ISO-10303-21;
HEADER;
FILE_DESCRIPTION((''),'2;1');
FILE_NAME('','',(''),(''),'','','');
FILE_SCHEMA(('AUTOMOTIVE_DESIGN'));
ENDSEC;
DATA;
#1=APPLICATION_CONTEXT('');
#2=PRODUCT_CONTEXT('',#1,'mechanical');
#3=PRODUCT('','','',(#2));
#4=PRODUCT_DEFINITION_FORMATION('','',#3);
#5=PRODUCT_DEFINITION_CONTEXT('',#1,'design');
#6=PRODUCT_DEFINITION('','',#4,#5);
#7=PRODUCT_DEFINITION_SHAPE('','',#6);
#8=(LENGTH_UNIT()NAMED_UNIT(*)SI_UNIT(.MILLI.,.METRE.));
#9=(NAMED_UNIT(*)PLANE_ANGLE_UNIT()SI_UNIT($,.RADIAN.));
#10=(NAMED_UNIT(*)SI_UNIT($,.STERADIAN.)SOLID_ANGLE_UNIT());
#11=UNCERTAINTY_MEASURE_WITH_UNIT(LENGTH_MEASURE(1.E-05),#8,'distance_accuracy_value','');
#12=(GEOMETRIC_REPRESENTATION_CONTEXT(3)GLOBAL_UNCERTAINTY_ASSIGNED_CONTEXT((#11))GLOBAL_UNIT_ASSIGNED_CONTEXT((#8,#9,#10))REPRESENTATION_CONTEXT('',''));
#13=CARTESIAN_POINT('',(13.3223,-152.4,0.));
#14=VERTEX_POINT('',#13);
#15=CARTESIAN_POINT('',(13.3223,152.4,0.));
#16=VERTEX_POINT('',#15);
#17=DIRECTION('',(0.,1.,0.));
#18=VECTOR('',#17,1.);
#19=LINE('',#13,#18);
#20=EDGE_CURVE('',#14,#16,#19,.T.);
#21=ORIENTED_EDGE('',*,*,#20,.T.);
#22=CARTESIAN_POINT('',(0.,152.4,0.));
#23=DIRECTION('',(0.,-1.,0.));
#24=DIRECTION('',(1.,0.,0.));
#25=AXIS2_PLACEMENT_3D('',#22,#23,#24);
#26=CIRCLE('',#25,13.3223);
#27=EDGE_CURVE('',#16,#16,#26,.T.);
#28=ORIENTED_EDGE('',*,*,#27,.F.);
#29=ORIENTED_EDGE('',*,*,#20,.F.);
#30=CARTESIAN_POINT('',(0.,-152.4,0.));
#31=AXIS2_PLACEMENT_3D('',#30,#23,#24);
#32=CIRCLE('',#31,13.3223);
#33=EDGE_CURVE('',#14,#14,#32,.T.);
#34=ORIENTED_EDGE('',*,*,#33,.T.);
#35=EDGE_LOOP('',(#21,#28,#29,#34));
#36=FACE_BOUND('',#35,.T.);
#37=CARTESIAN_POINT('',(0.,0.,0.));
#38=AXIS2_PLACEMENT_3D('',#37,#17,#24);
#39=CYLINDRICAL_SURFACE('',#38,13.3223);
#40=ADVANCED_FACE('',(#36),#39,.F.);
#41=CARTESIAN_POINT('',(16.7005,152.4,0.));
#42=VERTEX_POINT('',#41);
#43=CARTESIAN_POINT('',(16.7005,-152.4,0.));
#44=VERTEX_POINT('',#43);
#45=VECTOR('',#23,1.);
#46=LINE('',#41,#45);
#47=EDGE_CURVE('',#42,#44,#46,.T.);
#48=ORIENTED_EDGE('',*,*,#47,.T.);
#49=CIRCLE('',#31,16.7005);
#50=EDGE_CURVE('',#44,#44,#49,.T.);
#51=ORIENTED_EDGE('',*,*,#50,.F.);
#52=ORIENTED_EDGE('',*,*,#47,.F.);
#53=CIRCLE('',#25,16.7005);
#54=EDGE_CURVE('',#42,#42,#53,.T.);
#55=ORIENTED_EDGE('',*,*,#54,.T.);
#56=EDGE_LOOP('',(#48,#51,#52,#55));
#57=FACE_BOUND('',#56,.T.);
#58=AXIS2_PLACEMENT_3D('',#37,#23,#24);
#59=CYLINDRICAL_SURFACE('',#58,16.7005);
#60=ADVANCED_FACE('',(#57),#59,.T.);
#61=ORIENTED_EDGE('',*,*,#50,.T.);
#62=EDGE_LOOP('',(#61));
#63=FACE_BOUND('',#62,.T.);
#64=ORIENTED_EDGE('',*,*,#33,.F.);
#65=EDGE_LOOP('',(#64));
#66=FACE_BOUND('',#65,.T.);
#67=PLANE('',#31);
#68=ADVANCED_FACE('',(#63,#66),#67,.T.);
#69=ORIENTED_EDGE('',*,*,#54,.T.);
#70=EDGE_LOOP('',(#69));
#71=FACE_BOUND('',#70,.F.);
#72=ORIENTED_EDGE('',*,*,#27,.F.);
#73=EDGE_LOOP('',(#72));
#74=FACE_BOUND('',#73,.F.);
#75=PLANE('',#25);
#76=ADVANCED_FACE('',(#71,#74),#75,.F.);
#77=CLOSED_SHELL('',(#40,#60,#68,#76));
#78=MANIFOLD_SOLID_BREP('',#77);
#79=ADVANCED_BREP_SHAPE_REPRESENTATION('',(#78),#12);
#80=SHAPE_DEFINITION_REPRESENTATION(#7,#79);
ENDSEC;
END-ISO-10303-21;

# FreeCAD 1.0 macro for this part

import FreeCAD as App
import Part
import Sketcher
from FreeCAD import Vector
Q = App.Units.Quantity

doc = App.newDocument("Part")
body = doc.addObject("PartDesign::Body", "Body")

# Sketch on XZ plane
sketch1 = doc.addObject("Sketcher::SketchObject", "Sketch")
body.addObject(sketch1)
sketch1.AttachmentSupport = (doc.XZ_Plane, [""])
sketch1.MapMode = "FlatFace"
sketch1.addGeometry([
    Part.Circle(Vector(0, 0, 0), Vector(0, 0, 1), 16.7005),
    Part.Circle(Vector(0, 0, 0), Vector(0, 0, 1), 13.3223),
], False)
sketch1.addConstraint([
    Sketcher.Constraint("Coincident", 0, 3, -1, 1),
    Sketcher.Constraint("Coincident", 1, 3, -1, 1),
    Sketcher.Constraint("Diameter", 0, Q("1.315 in")),
    Sketcher.Constraint("Diameter", 1, Q("1.049 in")),
])
pad1 = doc.addObject("PartDesign::Pad", "Pad")
body.addObject(pad1)
pad1.Profile = sketch1
pad1.Length = Q("12 in")
pad1.Midplane = True
body2 = doc.addObject("PartDesign::Body", "Body001")

# Sketch on YZ plane
sketch2 = doc.addObject("Sketcher::SketchObject", "Sketch001")
body2.addObject(sketch2)
sketch2.AttachmentSupport = (doc.getObject("YZ_Plane001"), [""])
sketch2.MapMode = "FlatFace"
sketch2.addGeometry(Part.Circle(Vector(44.697168, 50.904491, 0), Vector(0, 0, 1), 28.470245), False)
sketch2.addConstraint([
    Sketcher.Constraint("Diameter", 0, 56.94049),
    Sketcher.Constraint("DistanceY", -1, 1, 0, 3, 50.904491),
    Sketcher.Constraint("DistanceX", -1, 1, 0, 3, 44.697168),
])
pad2 = doc.addObject("PartDesign::Pad", "Pad001")
body2.addObject(pad2)
pad2.Profile = sketch2
pad2.Length = Q("1 in")
body2.Visibility = False

doc.recompute()
